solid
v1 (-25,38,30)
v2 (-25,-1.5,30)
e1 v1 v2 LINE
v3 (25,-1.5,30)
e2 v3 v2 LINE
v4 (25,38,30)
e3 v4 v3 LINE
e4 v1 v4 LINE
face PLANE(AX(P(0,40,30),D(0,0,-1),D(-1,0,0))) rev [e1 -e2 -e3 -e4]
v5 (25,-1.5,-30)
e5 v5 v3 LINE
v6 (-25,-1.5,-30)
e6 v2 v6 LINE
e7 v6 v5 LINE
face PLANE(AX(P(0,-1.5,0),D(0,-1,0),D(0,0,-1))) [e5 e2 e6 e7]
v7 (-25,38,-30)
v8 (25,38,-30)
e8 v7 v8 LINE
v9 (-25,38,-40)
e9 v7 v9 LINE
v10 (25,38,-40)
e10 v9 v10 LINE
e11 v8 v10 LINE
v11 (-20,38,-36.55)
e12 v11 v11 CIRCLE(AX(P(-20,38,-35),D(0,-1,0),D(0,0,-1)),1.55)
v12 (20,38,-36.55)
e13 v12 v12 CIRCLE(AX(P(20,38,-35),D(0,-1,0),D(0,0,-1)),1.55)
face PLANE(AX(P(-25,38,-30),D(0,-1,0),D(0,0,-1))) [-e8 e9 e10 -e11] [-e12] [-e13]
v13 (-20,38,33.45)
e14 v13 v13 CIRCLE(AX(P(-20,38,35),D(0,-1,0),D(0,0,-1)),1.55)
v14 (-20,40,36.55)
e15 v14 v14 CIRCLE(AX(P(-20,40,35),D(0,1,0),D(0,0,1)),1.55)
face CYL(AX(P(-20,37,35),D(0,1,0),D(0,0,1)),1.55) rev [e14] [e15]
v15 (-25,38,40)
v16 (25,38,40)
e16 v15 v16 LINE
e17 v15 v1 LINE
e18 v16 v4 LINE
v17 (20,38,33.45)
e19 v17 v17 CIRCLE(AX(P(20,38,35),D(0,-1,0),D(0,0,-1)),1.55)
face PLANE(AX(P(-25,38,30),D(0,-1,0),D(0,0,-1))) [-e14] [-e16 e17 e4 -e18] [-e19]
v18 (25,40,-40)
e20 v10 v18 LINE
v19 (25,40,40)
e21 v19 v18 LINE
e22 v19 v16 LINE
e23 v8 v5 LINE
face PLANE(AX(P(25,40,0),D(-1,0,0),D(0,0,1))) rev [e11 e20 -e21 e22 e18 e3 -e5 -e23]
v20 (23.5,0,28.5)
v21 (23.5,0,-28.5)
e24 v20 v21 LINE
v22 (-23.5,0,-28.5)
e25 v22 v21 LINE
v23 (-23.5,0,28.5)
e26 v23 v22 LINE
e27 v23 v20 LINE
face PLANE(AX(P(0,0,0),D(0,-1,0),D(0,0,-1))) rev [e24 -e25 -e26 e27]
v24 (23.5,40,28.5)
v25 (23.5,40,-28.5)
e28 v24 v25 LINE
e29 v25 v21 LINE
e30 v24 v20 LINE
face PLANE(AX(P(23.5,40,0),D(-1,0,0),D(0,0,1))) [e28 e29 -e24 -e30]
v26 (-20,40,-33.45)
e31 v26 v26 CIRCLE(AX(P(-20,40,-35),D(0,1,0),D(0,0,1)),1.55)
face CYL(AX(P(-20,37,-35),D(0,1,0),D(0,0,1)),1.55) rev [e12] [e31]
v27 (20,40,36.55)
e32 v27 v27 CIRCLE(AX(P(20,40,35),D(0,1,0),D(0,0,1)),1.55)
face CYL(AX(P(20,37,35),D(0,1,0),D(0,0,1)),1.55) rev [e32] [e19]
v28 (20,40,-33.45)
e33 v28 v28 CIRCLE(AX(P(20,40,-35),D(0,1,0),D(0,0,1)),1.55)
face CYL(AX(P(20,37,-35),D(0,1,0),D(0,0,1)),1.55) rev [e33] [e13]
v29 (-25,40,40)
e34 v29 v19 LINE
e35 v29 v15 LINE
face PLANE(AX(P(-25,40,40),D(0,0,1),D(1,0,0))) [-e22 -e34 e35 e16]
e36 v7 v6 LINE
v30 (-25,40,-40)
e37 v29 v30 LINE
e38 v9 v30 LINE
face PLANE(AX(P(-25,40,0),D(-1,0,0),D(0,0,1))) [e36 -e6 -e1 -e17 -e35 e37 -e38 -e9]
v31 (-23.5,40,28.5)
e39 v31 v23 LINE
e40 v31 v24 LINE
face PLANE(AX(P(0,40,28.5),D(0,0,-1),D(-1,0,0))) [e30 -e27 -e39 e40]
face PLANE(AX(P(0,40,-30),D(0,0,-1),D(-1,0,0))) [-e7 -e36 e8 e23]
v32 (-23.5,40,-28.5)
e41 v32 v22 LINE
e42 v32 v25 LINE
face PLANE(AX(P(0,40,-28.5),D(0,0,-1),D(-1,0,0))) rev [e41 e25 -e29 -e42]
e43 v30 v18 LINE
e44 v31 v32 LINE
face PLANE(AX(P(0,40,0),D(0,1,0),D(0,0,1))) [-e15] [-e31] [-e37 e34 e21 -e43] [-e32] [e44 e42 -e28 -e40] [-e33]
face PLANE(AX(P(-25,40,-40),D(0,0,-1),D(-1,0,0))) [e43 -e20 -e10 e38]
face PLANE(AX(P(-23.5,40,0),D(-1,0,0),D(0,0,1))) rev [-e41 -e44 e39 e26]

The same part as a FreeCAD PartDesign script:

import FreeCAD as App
import Part
import Sketcher


def add_polygon(sketch, points):
    """Adds a closed chain of lines whose ends are joined by coincident constraints."""
    first, n = sketch.GeometryCount, len(points)
    for a, b in zip(points, points[1:] + points[:1]):
        sketch.addGeometry(Part.LineSegment(App.Vector(*a, 0), App.Vector(*b, 0)), False)
    for i in range(n):
        sketch.addConstraint(Sketcher.Constraint("Coincident", first + i, 2, first + (i + 1) % n, 1))

doc = App.newDocument("Part")
body = doc.addObject("PartDesign::Body", "Body")

# Sketch on XZ plane
sketch1 = body.newObject("Sketcher::SketchObject", "Sketch")
sketch1.AttachmentSupport = (doc.getObject("XZ_Plane"), [""])
sketch1.MapMode = "FlatFace"
add_polygon(sketch1, [(-25, -30), (-25, 30), (25, 30), (25, -30)])  # lines 0-3
add_polygon(sketch1, [(23.5, 28.5), (-23.5, 28.5), (-23.5, -28.5), (23.5, -28.5)])  # lines 4-7
sketch1.addConstraint(Sketcher.Constraint("Vertical", 0))
sketch1.addConstraint(Sketcher.Constraint("Horizontal", 1))
sketch1.addConstraint(Sketcher.Constraint("Vertical", 2))
sketch1.addConstraint(Sketcher.Constraint("Horizontal", 3))
sketch1.addConstraint(Sketcher.Constraint("Horizontal", 4))
sketch1.addConstraint(Sketcher.Constraint("Vertical", 5))
sketch1.addConstraint(Sketcher.Constraint("Horizontal", 6))
sketch1.addConstraint(Sketcher.Constraint("Vertical", 7))
sketch1.addConstraint(Sketcher.Constraint("Symmetric", 0, 2, 2, 2, -1, 1))
sketch1.addConstraint(Sketcher.Constraint("Symmetric", 4, 2, 6, 2, -1, 1))
sketch1.addConstraint(Sketcher.Constraint("DistanceX", 1, 1, 1, 2, 50.0))
sketch1.addConstraint(Sketcher.Constraint("DistanceX", 4, 2, 4, 1, 47.0))
sketch1.addConstraint(Sketcher.Constraint("DistanceY", 0, 1, 0, 2, 60.0))
sketch1.addConstraint(Sketcher.Constraint("DistanceY", 5, 2, 5, 1, 57.0))
pad1 = body.newObject("PartDesign::Pad", "Pad")
pad1.Profile = sketch1
pad1.Length = 40
pad1.Reversed = True

# Sketch on XZ plane
sketch2 = body.newObject("Sketcher::SketchObject", "Sketch001")
sketch2.AttachmentSupport = (doc.getObject("XZ_Plane"), [""])
sketch2.MapMode = "FlatFace"
add_polygon(sketch2, [(-25, 30), (-25, -30), (25, -30), (25, 30)])  # lines 0-3
sketch2.addConstraint(Sketcher.Constraint("Vertical", 0))
sketch2.addConstraint(Sketcher.Constraint("Horizontal", 1))
sketch2.addConstraint(Sketcher.Constraint("Vertical", 2))
sketch2.addConstraint(Sketcher.Constraint("Horizontal", 3))
sketch2.addConstraint(Sketcher.Constraint("Symmetric", 0, 2, 2, 2, -1, 1))
sketch2.addConstraint(Sketcher.Constraint("DistanceX", 1, 1, 1, 2, 50.0))
sketch2.addConstraint(Sketcher.Constraint("DistanceY", 0, 2, 0, 1, 60.0))
pad2 = body.newObject("PartDesign::Pad", "Pad001")
pad2.Profile = sketch2
pad2.Length = 1.5

# Sketch on YZ plane
sketch3 = body.newObject("Sketcher::SketchObject", "Sketch002")
sketch3.AttachmentSupport = (doc.getObject("YZ_Plane"), [""])
sketch3.MapMode = "FlatFace"
sketch3.AttachmentOffset = App.Placement(App.Vector(0, 0, 25), App.Rotation())
add_polygon(sketch3, [(40, 40), (38, 40), (38, 30), (40, 30)])  # lines 0-3
add_polygon(sketch3, [(40, -30), (38, -30), (38, -40), (40, -40)])  # lines 4-7
sketch3.addConstraint(Sketcher.Constraint("Horizontal", 0))
sketch3.addConstraint(Sketcher.Constraint("Vertical", 1))
sketch3.addConstraint(Sketcher.Constraint("Horizontal", 2))
sketch3.addConstraint(Sketcher.Constraint("Vertical", 3))
sketch3.addConstraint(Sketcher.Constraint("Horizontal", 4))
sketch3.addConstraint(Sketcher.Constraint("Vertical", 5))
sketch3.addConstraint(Sketcher.Constraint("Horizontal", 6))
sketch3.addConstraint(Sketcher.Constraint("Vertical", 7))
sketch3.addConstraint(Sketcher.Constraint("Symmetric", 1, 2, 4, 2, -1))
sketch3.addConstraint(Sketcher.Constraint("Symmetric", 3, 2, 6, 2, -1))
sketch3.addConstraint(Sketcher.Constraint("DistanceX", 0, 2, 0, 1, 2.0))
sketch3.addConstraint(Sketcher.Constraint("DistanceY", 1, 2, 1, 1, 10.0))
sketch3.addConstraint(Sketcher.Constraint("DistanceX", -1, 1, 0, 2, 38.0))
sketch3.addConstraint(Sketcher.Constraint("DistanceY", -1, 1, 0, 2, 40.0))
pad3 = body.newObject("PartDesign::Pad", "Pad002")
pad3.Profile = sketch3
pad3.Length = 50
pad3.Reversed = True

# Sketch on XZ plane
sketch4 = body.newObject("Sketcher::SketchObject", "Sketch003")
sketch4.AttachmentSupport = (doc.getObject("XZ_Plane"), [""])
sketch4.MapMode = "FlatFace"
sketch4.AttachmentOffset = App.Placement(App.Vector(0, 0, -40), App.Rotation())
sketch4.addGeometry(Part.Circle(App.Vector(-20, -35, 0), App.Vector(0, 0, 1), 1.55), False)
sketch4.addGeometry(Part.Circle(App.Vector(20, -35, 0), App.Vector(0, 0, 1), 1.55), False)
sketch4.addGeometry(Part.Circle(App.Vector(20, 35, 0), App.Vector(0, 0, 1), 1.55), False)
sketch4.addGeometry(Part.Circle(App.Vector(-20, 35, 0), App.Vector(0, 0, 1), 1.55), False)
sketch4.addConstraint(Sketcher.Constraint("Equal", 0, 1))
sketch4.addConstraint(Sketcher.Constraint("Equal", 1, 2))
sketch4.addConstraint(Sketcher.Constraint("Equal", 2, 3))
sketch4.addConstraint(Sketcher.Constraint("Symmetric", 0, 3, 2, 3, -1, 1))
sketch4.addConstraint(Sketcher.Constraint("Symmetric", 1, 3, 3, 3, -1, 1))
sketch4.addConstraint(Sketcher.Constraint("Symmetric", 0, 3, 1, 3, -2))
sketch4.addConstraint(Sketcher.Constraint("Diameter", 0, 3.1))
sketch4.addConstraint(Sketcher.Constraint("DistanceX", 0, 3, -1, 1, 20.0))
sketch4.addConstraint(Sketcher.Constraint("DistanceY", 0, 3, -1, 1, 35.0))
pocket1 = body.newObject("PartDesign::Pocket", "Pocket")
pocket1.Profile = sketch4
pocket1.Length = 3
pocket1.Reversed = True

doc.recompute()
